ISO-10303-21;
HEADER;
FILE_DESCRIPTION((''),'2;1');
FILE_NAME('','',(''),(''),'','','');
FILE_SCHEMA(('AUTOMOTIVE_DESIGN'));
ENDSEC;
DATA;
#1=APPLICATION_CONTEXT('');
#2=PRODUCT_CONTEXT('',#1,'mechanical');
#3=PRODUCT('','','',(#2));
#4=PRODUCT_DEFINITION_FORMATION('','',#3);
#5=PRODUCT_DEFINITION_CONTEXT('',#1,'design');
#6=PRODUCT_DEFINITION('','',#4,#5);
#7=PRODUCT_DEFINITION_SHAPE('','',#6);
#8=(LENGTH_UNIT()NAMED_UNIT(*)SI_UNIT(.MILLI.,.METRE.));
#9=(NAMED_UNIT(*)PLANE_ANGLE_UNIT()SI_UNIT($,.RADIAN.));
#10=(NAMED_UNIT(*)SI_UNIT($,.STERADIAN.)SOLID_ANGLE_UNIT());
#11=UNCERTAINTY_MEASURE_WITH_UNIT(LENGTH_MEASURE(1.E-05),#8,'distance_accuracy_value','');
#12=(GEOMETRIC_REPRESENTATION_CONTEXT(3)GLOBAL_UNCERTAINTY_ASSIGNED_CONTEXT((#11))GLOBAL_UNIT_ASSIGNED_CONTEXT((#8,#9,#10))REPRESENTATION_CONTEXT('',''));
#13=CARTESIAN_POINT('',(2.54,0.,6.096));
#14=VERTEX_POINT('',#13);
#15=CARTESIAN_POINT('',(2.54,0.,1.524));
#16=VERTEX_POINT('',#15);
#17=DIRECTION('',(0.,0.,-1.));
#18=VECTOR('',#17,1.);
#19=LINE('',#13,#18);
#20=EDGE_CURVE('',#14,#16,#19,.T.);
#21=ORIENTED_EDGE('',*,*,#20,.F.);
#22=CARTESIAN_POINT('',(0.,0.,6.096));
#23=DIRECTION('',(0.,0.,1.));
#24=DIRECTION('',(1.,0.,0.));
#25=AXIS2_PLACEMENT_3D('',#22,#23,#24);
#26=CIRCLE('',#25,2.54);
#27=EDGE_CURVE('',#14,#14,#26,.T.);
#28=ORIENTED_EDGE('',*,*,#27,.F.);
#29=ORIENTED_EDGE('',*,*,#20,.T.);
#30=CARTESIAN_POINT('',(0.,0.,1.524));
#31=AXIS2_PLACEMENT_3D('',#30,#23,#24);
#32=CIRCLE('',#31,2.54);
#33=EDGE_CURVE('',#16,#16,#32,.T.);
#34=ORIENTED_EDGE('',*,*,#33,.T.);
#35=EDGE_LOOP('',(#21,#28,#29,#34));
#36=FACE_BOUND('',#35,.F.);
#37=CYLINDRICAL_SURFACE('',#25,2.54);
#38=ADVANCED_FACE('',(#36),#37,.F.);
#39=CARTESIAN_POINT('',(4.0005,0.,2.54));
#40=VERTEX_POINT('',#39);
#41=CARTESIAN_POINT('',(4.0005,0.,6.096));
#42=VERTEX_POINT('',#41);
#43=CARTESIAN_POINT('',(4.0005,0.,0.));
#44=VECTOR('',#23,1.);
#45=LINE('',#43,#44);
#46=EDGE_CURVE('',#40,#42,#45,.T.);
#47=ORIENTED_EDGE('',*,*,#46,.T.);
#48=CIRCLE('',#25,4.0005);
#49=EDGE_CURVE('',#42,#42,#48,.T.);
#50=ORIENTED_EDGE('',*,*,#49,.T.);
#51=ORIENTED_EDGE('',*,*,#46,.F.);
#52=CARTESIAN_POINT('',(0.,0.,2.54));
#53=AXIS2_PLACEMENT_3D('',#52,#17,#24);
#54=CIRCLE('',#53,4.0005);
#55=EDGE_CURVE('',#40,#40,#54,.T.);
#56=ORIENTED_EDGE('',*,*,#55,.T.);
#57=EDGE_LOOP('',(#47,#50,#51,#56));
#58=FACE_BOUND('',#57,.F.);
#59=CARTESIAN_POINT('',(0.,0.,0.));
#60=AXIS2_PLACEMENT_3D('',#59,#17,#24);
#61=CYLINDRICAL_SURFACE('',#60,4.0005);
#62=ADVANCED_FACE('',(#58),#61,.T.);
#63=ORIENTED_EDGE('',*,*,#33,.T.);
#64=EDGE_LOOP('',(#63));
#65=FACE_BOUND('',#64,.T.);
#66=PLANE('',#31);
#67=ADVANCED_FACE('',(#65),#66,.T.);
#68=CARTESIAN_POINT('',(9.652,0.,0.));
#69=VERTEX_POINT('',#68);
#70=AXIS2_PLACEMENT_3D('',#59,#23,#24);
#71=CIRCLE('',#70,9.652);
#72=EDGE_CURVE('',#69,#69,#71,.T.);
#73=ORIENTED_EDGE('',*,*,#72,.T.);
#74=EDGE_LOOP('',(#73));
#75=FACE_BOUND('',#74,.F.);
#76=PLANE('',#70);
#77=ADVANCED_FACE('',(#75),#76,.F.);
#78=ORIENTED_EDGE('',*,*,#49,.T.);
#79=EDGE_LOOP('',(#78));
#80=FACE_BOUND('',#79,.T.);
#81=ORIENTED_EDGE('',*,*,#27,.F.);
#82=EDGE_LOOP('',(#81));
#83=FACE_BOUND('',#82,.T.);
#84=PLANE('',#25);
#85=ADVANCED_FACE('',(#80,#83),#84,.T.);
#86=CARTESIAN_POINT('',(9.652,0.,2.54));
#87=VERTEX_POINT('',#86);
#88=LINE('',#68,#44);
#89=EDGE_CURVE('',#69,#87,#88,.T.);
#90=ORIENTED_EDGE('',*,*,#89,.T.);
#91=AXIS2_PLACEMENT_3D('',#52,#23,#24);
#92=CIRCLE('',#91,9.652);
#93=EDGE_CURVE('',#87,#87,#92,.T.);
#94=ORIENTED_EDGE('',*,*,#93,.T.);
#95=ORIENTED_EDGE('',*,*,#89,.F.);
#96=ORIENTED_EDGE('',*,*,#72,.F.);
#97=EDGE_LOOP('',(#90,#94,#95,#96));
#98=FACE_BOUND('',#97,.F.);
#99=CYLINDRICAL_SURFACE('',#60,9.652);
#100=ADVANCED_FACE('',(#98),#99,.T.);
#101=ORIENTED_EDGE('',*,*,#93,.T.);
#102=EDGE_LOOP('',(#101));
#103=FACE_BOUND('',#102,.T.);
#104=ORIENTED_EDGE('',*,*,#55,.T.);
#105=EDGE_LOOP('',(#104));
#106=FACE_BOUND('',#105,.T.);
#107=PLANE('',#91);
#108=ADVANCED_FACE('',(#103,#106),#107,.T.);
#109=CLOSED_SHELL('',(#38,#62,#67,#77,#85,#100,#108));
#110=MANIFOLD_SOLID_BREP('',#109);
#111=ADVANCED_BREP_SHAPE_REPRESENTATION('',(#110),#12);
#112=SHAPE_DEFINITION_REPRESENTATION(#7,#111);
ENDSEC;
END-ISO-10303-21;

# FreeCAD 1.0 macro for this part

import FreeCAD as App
import Part
import Sketcher
Q = App.Units.Quantity

doc = App.newDocument("Part")
body = doc.addObject("PartDesign::Body", "Body")

# Sketch on XY plane
sketch1 = body.newObject("Sketcher::SketchObject", "Sketch")
sketch1.AttachmentSupport = (doc.getObject("XY_Plane"), [""])
sketch1.MapMode = "FlatFace"
sketch1.addGeometry(Part.Circle(App.Vector(0, 0, 0), App.Vector(0, 0, 1), 9.7), False)
sketch1.addGeometry(Part.Circle(App.Vector(0, 0, 0), App.Vector(0, 0, 1), 3.9), False)
sketch1.addConstraint(Sketcher.Constraint("Coincident", 0, 3, -1, 1))
sketch1.addConstraint(Sketcher.Constraint("Coincident", 1, 3, -1, 1))
sketch1.addConstraint(Sketcher.Constraint("Diameter", 0, Q("0.76 in")))
sketch1.addConstraint(Sketcher.Constraint("Diameter", 1, Q("0.305 in")))
pad1 = body.newObject("PartDesign::Pad", "Pad")
pad1.Profile = sketch1
pad1.Length = Q("0.1 in")

# Sketch on XY plane
sketch2 = body.newObject("Sketcher::SketchObject", "Sketch001")
sketch2.AttachmentSupport = (doc.getObject("XY_Plane"), [""])
sketch2.MapMode = "FlatFace"
sketch2.addGeometry(Part.Circle(App.Vector(0, 0, 0), App.Vector(0, 0, 1), 4), False)
sketch2.addConstraint(Sketcher.Constraint("Coincident", 0, 3, -1, 1))
sketch2.addConstraint(Sketcher.Constraint("Diameter", 0, Q("0.315 in")))
pad2 = body.newObject("PartDesign::Pad", "Pad001")
pad2.Profile = sketch2
pad2.Length = Q("0.24 in")

# Sketch on XY plane
sketch3 = body.newObject("Sketcher::SketchObject", "Sketch002")
sketch3.AttachmentSupport = (doc.getObject("XY_Plane"), [""])
sketch3.MapMode = "FlatFace"
sketch3.AttachmentOffset = App.Placement(App.Vector(0, 0, 0.24 * 25.4), App.Rotation())
sketch3.addGeometry(Part.Circle(App.Vector(0, 0, 0), App.Vector(0, 0, 1), 2.5), False)
sketch3.addConstraint(Sketcher.Constraint("Coincident", 0, 3, -1, 1))
sketch3.addConstraint(Sketcher.Constraint("Diameter", 0, Q("0.2 in")))
pocket1 = body.newObject("PartDesign::Pocket", "Pocket")
pocket1.Profile = sketch3
pocket1.Length = Q("0.18 in")

doc.recompute()
